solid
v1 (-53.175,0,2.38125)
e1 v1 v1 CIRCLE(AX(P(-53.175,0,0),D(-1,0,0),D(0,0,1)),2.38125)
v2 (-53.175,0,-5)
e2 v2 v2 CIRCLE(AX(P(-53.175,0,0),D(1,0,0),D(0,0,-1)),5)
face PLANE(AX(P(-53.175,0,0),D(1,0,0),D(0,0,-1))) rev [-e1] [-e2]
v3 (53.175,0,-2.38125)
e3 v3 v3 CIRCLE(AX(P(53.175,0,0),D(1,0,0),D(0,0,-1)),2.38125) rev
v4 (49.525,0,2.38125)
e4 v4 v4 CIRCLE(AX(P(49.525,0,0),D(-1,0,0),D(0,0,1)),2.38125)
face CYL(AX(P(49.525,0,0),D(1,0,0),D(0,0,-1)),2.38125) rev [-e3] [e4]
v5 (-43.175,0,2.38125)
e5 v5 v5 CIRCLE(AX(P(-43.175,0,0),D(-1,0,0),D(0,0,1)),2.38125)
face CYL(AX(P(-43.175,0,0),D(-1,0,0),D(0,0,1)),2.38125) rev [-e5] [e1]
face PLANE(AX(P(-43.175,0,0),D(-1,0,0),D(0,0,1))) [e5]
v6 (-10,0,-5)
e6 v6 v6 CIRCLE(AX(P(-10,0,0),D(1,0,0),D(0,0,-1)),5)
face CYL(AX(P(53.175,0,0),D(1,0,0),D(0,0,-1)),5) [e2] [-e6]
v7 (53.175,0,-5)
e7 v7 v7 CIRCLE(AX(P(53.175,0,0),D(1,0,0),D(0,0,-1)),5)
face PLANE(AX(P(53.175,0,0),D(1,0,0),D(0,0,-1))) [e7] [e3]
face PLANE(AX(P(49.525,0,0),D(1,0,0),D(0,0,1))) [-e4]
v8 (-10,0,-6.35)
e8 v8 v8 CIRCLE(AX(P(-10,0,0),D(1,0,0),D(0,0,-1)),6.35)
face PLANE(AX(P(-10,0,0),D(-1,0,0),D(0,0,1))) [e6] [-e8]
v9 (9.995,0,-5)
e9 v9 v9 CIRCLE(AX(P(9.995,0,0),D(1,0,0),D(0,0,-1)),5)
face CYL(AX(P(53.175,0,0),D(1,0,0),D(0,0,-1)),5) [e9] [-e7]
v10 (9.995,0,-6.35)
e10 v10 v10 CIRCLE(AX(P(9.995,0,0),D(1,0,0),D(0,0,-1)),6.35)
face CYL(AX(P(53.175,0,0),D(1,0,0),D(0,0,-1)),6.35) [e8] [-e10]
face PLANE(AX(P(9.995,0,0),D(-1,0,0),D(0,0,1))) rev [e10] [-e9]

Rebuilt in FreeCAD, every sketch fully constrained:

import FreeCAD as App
import Part
import Sketcher
Q = App.Units.Quantity


def add_polygon(sketch, points):
    """Adds a closed chain of lines whose ends are joined by coincident constraints."""
    first, n = sketch.GeometryCount, len(points)
    for a, b in zip(points, points[1:] + points[:1]):
        sketch.addGeometry(Part.LineSegment(App.Vector(*a, 0), App.Vector(*b, 0)), False)
    for i in range(n):
        sketch.addConstraint(Sketcher.Constraint("Coincident", first + i, 2, first + (i + 1) % n, 1))

doc = App.newDocument("Part")
body = doc.addObject("PartDesign::Body", "Body")

# Sketch on XZ plane
sketch1 = body.newObject("Sketcher::SketchObject", "Sketch")
sketch1.AttachmentSupport = (doc.getObject("XZ_Plane"), [""])
sketch1.MapMode = "FlatFace"
add_polygon(sketch1, [(10, -6.3), (-10, -6.3), (-10, -5), (-53.2, -5), (-53.2, 0), (53.2, 0), (53.2, -5), (10, -5)])  # lines 0-7
sketch1.addConstraint([
    Sketcher.Constraint("Horizontal", 0),
    Sketcher.Constraint("Vertical", 1),
    Sketcher.Constraint("Horizontal", 2),
    Sketcher.Constraint("Vertical", 3),
    Sketcher.Constraint("Horizontal", 4),
    Sketcher.Constraint("Vertical", 5),
    Sketcher.Constraint("Horizontal", 6),
    Sketcher.Constraint("Vertical", 7),
    Sketcher.Constraint("Symmetric", 3, 2, 4, 2, -1, 1),
    Sketcher.Constraint("Horizontal", 2, 2, 5, 2),
    Sketcher.Constraint("DistanceY", 3, 1, 3, 2, Q("5 mm")),
    Sketcher.Constraint("DistanceX", 0, 2, -1, 1, Q("10 mm")),
    Sketcher.Constraint("DistanceX", 4, 1, 4, 2, Q("106.35 mm")),
    Sketcher.Constraint("DistanceX", 6, 2, 6, 1, Q("43.18 mm")),
    Sketcher.Constraint("DistanceY", 1, 1, 1, 2, Q("1.35 mm")),
])
revolution = body.newObject("PartDesign::Revolution", "Revolution")
revolution.Profile = sketch1
revolution.ReferenceAxis = (sketch1, ["H_Axis"])
revolution.Angle = 360

# Sketch on YZ plane
sketch2 = body.newObject("Sketcher::SketchObject", "Sketch001")
sketch2.AttachmentSupport = (doc.getObject("YZ_Plane"), [""])
sketch2.MapMode = "FlatFace"
sketch2.AttachmentOffset = App.Placement(App.Vector(0, 0, -53.175), App.Rotation())
sketch2.addGeometry(Part.Circle(App.Vector(0, 0, 0), App.Vector(0, 0, 1), 2.4), False)
sketch2.addConstraint([
    Sketcher.Constraint("Coincident", 0, 3, -1, 1),
    Sketcher.Constraint("Diameter", 0, Q("4.7625 mm")),
])
pocket1 = body.newObject("PartDesign::Pocket", "Pocket")
pocket1.Profile = sketch2
pocket1.Length = 10
pocket1.Reversed = True
doc.recompute()

datumplane = body.newObject("PartDesign::Plane", "DatumPlane")
datumplane.AttachmentSupport = (doc.getObject("YZ_Plane"), [""])
datumplane.MapMode = "FlatFace"
datumplane.AttachmentOffset = App.Placement(App.Vector(0, 0, 3.175), App.Rotation())
mirrored = body.newObject("PartDesign::Mirrored", "Mirrored")
mirrored.Originals = [pocket1]
mirrored.MirrorPlane = (datumplane, [""])
body.Tip = mirrored

doc.recompute()
